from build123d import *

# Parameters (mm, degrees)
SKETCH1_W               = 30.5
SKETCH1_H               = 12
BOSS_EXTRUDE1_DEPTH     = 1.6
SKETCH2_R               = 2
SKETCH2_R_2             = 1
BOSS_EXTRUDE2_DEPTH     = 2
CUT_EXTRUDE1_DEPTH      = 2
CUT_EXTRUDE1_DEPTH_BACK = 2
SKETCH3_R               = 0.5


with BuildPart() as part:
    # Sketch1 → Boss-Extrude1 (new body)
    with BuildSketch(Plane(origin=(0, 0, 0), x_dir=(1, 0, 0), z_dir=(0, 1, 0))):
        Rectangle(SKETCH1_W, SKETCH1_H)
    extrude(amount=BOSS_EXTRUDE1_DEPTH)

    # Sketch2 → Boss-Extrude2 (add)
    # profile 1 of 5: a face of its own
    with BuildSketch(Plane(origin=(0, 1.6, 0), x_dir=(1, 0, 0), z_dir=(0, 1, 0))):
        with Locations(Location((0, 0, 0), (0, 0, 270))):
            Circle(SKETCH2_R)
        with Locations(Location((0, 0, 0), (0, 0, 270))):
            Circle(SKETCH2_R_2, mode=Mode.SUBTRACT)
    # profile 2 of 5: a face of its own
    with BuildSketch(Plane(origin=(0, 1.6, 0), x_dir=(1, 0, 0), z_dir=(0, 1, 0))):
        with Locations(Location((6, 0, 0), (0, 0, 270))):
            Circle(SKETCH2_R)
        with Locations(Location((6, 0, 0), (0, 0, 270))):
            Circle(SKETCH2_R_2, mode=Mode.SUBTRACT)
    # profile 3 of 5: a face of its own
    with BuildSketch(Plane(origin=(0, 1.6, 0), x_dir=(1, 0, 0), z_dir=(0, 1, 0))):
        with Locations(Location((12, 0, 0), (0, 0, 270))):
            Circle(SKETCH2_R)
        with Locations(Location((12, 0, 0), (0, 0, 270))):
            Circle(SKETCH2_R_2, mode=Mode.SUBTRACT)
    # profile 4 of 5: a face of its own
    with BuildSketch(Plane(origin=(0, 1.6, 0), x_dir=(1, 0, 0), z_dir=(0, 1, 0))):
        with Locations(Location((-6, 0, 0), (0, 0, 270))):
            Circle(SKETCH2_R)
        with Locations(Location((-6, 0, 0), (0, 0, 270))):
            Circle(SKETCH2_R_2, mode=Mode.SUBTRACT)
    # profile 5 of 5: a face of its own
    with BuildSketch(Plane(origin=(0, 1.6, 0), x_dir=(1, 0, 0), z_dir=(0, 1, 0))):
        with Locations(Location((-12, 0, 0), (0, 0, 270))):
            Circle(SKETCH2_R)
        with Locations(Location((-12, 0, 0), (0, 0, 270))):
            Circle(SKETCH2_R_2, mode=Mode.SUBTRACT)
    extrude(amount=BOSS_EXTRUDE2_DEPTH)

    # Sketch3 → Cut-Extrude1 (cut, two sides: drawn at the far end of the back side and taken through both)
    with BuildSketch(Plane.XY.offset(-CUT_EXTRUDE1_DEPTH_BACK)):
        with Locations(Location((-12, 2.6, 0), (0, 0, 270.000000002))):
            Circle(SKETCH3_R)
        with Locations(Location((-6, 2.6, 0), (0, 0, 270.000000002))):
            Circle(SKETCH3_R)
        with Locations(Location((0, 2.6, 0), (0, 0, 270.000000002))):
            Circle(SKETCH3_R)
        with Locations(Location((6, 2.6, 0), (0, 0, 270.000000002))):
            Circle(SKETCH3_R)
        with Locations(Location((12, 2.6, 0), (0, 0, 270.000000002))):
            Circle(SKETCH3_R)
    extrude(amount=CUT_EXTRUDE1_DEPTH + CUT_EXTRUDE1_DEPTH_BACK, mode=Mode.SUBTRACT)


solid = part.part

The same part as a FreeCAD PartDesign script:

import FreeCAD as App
import Part
import Sketcher
from FreeCAD import Vector
Q = App.Units.Quantity


def add_polygon(sketch, points):
    """Adds a closed chain of lines whose ends are joined by coincident constraints."""
    first, n = sketch.GeometryCount, len(points)
    for a, b in zip(points, points[1:] + points[:1]):
        sketch.addGeometry(Part.LineSegment(App.Vector(*a, 0), App.Vector(*b, 0)), False)
    for i in range(n):
        sketch.addConstraint(Sketcher.Constraint("Coincident", first + i, 2, first + (i + 1) % n, 1))

doc = App.newDocument("Part")
body = doc.addObject("PartDesign::Body", "Body")

# Sketch on XZ plane
sketch1 = body.newObject("Sketcher::SketchObject", "Sketch")
sketch1.AttachmentSupport = (doc.getObject("XZ_Plane"), [""])
sketch1.MapMode = "FlatFace"
add_polygon(sketch1, [(-15.25, -6), (-15.25, 6), (15.25, 6), (15.25, -6)])  # lines 0-3
sketch1.addConstraint([
    Sketcher.Constraint("Vertical", 0),
    Sketcher.Constraint("Horizontal", 1),
    Sketcher.Constraint("Vertical", 2),
    Sketcher.Constraint("Horizontal", 3),
    Sketcher.Constraint("Symmetric", 0, 2, 2, 2, -1, 1),
    Sketcher.Constraint("DistanceY", 0, 1, 0, 2, Q("12 mm")),
    Sketcher.Constraint("DistanceX", 1, 1, 1, 2, Q("30.5 mm")),
])
pad1 = body.newObject("PartDesign::Pad", "Pad")
pad1.Profile = sketch1
pad1.Length = 1.6
pad1.Reversed = True

# Sketch on XZ plane
sketch2 = body.newObject("Sketcher::SketchObject", "Sketch001")
sketch2.AttachmentSupport = (doc.getObject("XZ_Plane"), [""])
sketch2.MapMode = "FlatFace"
sketch2.AttachmentOffset = App.Placement(Vector(0, 0, -1.6), App.Rotation())
sketch2.addGeometry([
    Part.Circle(Vector(0, 0, 0), Vector(0, 0, 1), 2),  # 0
    Part.Circle(Vector(0, 0, 0), Vector(0, 0, 1), 1),  # 1
    Part.Circle(Vector(6, 0, 0), Vector(0, 0, 1), 2),  # 2
    Part.Circle(Vector(6, 0, 0), Vector(0, 0, 1), 1),  # 3
    Part.Circle(Vector(12, 0, 0), Vector(0, 0, 1), 2),  # 4
    Part.Circle(Vector(12, 0, 0), Vector(0, 0, 1), 1),  # 5
    Part.Circle(Vector(-6, 0, 0), Vector(0, 0, 1), 2),  # 6
    Part.Circle(Vector(-6, 0, 0), Vector(0, 0, 1), 1),  # 7
    Part.Circle(Vector(-12, 0, 0), Vector(0, 0, 1), 2),  # 8
    Part.Circle(Vector(-12, 0, 0), Vector(0, 0, 1), 1),  # 9
], False)
sketch2.addConstraint([
    Sketcher.Constraint("Coincident", 0, 3, -1, 1),
    Sketcher.Constraint("Coincident", 1, 3, -1, 1),
    Sketcher.Constraint("Coincident", 3, 3, 2, 3),
    Sketcher.Constraint("Coincident", 5, 3, 4, 3),
    Sketcher.Constraint("Coincident", 7, 3, 6, 3),
    Sketcher.Constraint("Coincident", 9, 3, 8, 3),
    Sketcher.Constraint("Equal", 0, 2),
    Sketcher.Constraint("Equal", 1, 3),
    Sketcher.Constraint("Equal", 2, 4),
    Sketcher.Constraint("Equal", 3, 5),
    Sketcher.Constraint("Equal", 4, 6),
    Sketcher.Constraint("Equal", 5, 7),
    Sketcher.Constraint("Equal", 6, 8),
    Sketcher.Constraint("Equal", 7, 9),
    Sketcher.Constraint("Symmetric", 2, 3, 6, 3, -1, 1),
    Sketcher.Constraint("Symmetric", 4, 3, 8, 3, -1, 1),
    Sketcher.Constraint("PointOnObject", 2, 3, -1),
    Sketcher.Constraint("PointOnObject", 4, 3, -1),
    Sketcher.Constraint("Diameter", 0, Q("4 mm")),
    Sketcher.Constraint("Diameter", 1, Q("2 mm")),
    Sketcher.Constraint("DistanceX", -1, 1, 2, 3, Q("6 mm")),
    Sketcher.Constraint("DistanceX", -1, 1, 4, 3, Q("12 mm")),
])
pad2 = body.newObject("PartDesign::Pad", "Pad001")
pad2.Profile = sketch2
pad2.Length = 2
pad2.Reversed = True

# Sketch on XY plane
sketch3 = body.newObject("Sketcher::SketchObject", "Sketch002")
sketch3.AttachmentSupport = (doc.getObject("XY_Plane"), [""])
sketch3.MapMode = "FlatFace"
sketch3.addGeometry([
    Part.Circle(Vector(-12, 2.6, 0), Vector(0, 0, 1), 0.5),  # 0
    Part.Circle(Vector(-6, 2.6, 0), Vector(0, 0, 1), 0.5),  # 1
    Part.Circle(Vector(0, 2.6, 0), Vector(0, 0, 1), 0.5),  # 2
    Part.Circle(Vector(6, 2.6, 0), Vector(0, 0, 1), 0.5),  # 3
    Part.Circle(Vector(12, 2.6, 0), Vector(0, 0, 1), 0.5),  # 4
], False)
sketch3.addConstraint([
    Sketcher.Constraint("Equal", 0, 1),
    Sketcher.Constraint("Equal", 1, 2),
    Sketcher.Constraint("Equal", 2, 3),
    Sketcher.Constraint("Equal", 3, 4),
    Sketcher.Constraint("Symmetric", 1, 3, 3, 3, -2),
    Sketcher.Constraint("Symmetric", 0, 3, 4, 3, -2),
    Sketcher.Constraint("PointOnObject", 2, 3, -2),
    Sketcher.Constraint("Horizontal", 0, 3, 1, 3),
    Sketcher.Constraint("Horizontal", 1, 3, 2, 3),
    Sketcher.Constraint("Diameter", 0, Q("1 mm")),
    Sketcher.Constraint("DistanceX", 0, 3, -1, 1, Q("12 mm")),
    Sketcher.Constraint("DistanceX", 1, 3, -1, 1, Q("6 mm")),
    Sketcher.Constraint("DistanceY", -1, 1, 0, 3, Q("2.6 mm")),
])
pocket1 = body.newObject("PartDesign::Pocket", "Pocket")
pocket1.Profile = sketch3
pocket1.Type = "ThroughAll"
pocket1.Midplane = True

doc.recompute()
